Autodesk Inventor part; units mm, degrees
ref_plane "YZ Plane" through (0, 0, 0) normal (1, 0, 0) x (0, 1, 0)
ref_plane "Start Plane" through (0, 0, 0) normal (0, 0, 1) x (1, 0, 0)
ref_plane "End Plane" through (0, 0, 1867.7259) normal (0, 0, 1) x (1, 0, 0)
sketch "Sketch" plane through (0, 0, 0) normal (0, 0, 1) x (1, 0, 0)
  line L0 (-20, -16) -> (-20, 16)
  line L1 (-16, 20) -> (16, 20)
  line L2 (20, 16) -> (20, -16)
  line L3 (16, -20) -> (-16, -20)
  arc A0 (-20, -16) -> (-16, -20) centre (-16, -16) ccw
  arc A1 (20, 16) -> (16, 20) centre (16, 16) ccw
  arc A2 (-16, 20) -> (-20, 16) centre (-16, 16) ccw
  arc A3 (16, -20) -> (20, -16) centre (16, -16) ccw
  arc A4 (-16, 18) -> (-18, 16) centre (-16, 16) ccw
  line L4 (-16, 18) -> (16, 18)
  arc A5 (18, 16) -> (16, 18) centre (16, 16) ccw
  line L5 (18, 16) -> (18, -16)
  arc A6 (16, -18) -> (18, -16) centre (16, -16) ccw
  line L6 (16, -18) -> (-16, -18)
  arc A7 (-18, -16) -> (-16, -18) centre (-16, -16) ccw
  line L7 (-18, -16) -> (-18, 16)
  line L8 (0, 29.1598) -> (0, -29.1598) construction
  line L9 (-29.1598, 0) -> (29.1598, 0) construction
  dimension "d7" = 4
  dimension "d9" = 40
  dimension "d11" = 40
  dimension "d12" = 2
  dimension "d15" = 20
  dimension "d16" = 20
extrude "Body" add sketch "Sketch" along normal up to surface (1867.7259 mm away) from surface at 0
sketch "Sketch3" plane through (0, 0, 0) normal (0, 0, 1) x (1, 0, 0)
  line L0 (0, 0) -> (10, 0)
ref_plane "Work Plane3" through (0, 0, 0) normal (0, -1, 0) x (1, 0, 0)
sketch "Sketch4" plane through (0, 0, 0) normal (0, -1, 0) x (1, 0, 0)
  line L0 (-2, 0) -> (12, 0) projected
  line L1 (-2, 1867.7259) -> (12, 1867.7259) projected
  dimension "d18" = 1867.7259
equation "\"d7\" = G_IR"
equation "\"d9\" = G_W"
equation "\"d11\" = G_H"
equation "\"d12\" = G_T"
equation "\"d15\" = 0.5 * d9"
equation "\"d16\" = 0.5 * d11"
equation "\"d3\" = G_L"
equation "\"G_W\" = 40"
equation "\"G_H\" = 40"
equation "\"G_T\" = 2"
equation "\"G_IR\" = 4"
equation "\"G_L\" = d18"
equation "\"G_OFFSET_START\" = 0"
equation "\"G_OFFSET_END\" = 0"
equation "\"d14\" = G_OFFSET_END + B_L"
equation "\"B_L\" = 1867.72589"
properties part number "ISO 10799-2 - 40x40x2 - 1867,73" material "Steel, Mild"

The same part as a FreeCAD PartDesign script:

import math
import FreeCAD as App
import Part
import Sketcher

V = App.Vector
Q = App.Units.Quantity

doc = App.newDocument("Part")
body = doc.addObject("PartDesign::Body", "Body")

sketch1 = body.newObject("Sketcher::SketchObject", "Sketch")
sketch1.AttachmentSupport = (doc.getObject("XY_Plane"), [""])
sketch1.MapMode = "FlatFace"
sketch1.addGeometry([
    Part.LineSegment(V(-20, 16, 0), V(-20, -16, 0)),
    Part.ArcOfCircle(Part.Circle(V(-16, -16, 0), V(0, 0, 1), 4), math.radians(180), math.radians(270)),
    Part.LineSegment(V(-16, -20, 0), V(16, -20, 0)),
    Part.ArcOfCircle(Part.Circle(V(16, -16, 0), V(0, 0, 1), 4), math.radians(-90), math.radians(0)),
    Part.LineSegment(V(20, -16, 0), V(20, 16, 0)),
    Part.ArcOfCircle(Part.Circle(V(16, 16, 0), V(0, 0, 1), 4), math.radians(0), math.radians(90)),
    Part.LineSegment(V(16, 20, 0), V(-16, 20, 0)),
    Part.ArcOfCircle(Part.Circle(V(-16, 16, 0), V(0, 0, 1), 4), math.radians(90), math.radians(180)),
    Part.ArcOfCircle(Part.Circle(V(-16, 16, 0), V(0, 0, 1), 2), math.radians(90), math.radians(180)),
    Part.LineSegment(V(-16, 18, 0), V(16, 18, 0)),
    Part.ArcOfCircle(Part.Circle(V(16, 16, 0), V(0, 0, 1), 2), math.radians(0), math.radians(90)),
    Part.LineSegment(V(18, 16, 0), V(18, -16, 0)),
    Part.ArcOfCircle(Part.Circle(V(16, -16, 0), V(0, 0, 1), 2), math.radians(-90), math.radians(0)),
    Part.LineSegment(V(16, -18, 0), V(-16, -18, 0)),
    Part.ArcOfCircle(Part.Circle(V(-16, -16, 0), V(0, 0, 1), 2), math.radians(180), math.radians(270)),
    Part.LineSegment(V(-18, -16, 0), V(-18, 16, 0)),
], False)
sketch1.addConstraint([
    Sketcher.Constraint("Tangent", 0, 2, 1, 1),
    Sketcher.Constraint("Tangent", 1, 2, 2, 1),
    Sketcher.Constraint("Tangent", 2, 2, 3, 1),
    Sketcher.Constraint("Tangent", 3, 2, 4, 1),
    Sketcher.Constraint("Tangent", 4, 2, 5, 1),
    Sketcher.Constraint("Tangent", 5, 2, 6, 1),
    Sketcher.Constraint("Tangent", 6, 2, 7, 1),
    Sketcher.Constraint("Tangent", 7, 2, 0, 1),
    Sketcher.Constraint("Tangent", 8, 1, 9, 1),
    Sketcher.Constraint("Tangent", 9, 2, 10, 2),
    Sketcher.Constraint("Tangent", 10, 1, 11, 1),
    Sketcher.Constraint("Tangent", 11, 2, 12, 2),
    Sketcher.Constraint("Tangent", 12, 1, 13, 1),
    Sketcher.Constraint("Tangent", 13, 2, 14, 2),
    Sketcher.Constraint("Tangent", 14, 1, 15, 1),
    Sketcher.Constraint("Tangent", 15, 2, 8, 2),
    Sketcher.Constraint("Vertical", 0),
    Sketcher.Constraint("Horizontal", 2),
    Sketcher.Constraint("Vertical", 4),
    Sketcher.Constraint("Horizontal", 6),
    Sketcher.Constraint("Horizontal", 9),
    Sketcher.Constraint("Vertical", 11),
    Sketcher.Constraint("Horizontal", 13),
    Sketcher.Constraint("Vertical", 15),
    Sketcher.Constraint("Coincident", 8, 3, 7, 3),
    Sketcher.Constraint("Coincident", 10, 3, 5, 3),
    Sketcher.Constraint("Coincident", 12, 3, 3, 3),
    Sketcher.Constraint("Equal", 1, 3),
    Sketcher.Constraint("Equal", 3, 5),
    Sketcher.Constraint("Equal", 5, 7),
    Sketcher.Constraint("Equal", 12, 14),
    Sketcher.Constraint("Symmetric", 1, 3, 5, 3, -1, 1),
    Sketcher.Constraint("Equal", 13, 0),
    Sketcher.Constraint("Radius", 1, Q("4 mm")),
    Sketcher.Constraint("Radius", 8, Q("2 mm")),
    Sketcher.Constraint("DistanceX", 0, 2, -1, 1, Q("20 mm")),
])
pad1 = body.newObject("PartDesign::Pad", "Pad")
pad1.Profile = sketch1
pad1.Length = 1867.7259

doc.recompute()
